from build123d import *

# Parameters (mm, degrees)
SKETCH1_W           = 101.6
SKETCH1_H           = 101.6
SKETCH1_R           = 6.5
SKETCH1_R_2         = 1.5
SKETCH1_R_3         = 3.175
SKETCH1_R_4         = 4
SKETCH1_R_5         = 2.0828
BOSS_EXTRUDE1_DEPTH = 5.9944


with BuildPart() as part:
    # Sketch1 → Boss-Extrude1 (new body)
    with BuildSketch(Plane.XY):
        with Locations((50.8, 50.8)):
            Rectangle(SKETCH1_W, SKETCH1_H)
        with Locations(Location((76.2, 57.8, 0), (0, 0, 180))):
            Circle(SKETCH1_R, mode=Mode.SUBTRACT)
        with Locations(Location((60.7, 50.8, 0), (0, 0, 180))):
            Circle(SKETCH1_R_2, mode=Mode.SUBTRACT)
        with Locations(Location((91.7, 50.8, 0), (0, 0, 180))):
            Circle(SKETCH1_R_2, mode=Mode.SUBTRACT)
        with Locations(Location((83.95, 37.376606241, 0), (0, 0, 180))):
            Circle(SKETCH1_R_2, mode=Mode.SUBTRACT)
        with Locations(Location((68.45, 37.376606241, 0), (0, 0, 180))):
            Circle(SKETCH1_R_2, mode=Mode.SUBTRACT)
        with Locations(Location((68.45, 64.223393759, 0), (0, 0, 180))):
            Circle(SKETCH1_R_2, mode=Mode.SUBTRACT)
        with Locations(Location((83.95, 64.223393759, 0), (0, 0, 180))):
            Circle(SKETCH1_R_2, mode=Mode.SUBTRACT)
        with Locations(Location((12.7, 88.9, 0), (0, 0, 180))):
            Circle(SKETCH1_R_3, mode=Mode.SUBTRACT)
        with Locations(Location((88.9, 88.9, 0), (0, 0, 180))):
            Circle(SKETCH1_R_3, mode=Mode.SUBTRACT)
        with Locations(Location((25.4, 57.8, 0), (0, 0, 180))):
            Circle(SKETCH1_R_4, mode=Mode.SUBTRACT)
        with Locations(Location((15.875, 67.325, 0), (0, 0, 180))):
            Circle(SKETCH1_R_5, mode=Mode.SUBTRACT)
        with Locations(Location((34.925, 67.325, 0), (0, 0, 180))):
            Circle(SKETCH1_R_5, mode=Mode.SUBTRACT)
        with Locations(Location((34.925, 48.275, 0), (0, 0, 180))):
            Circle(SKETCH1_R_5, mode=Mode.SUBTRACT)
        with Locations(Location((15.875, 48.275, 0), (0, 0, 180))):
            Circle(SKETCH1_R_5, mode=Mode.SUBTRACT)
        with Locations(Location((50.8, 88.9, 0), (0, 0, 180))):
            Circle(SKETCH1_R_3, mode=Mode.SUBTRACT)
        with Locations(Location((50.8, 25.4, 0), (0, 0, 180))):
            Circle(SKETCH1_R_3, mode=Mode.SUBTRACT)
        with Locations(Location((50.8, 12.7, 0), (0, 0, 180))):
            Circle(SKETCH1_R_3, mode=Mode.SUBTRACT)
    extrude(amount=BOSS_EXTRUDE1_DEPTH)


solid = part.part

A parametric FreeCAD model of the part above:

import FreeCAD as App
import Part
import Sketcher
Q = App.Units.Quantity


def add_polygon(sketch, points):
    """Adds a closed chain of lines whose ends are joined by coincident constraints."""
    first, n = sketch.GeometryCount, len(points)
    for a, b in zip(points, points[1:] + points[:1]):
        sketch.addGeometry(Part.LineSegment(App.Vector(*a, 0), App.Vector(*b, 0)), False)
    for i in range(n):
        sketch.addConstraint(Sketcher.Constraint("Coincident", first + i, 2, first + (i + 1) % n, 1))

doc = App.newDocument("Part")
body = doc.addObject("PartDesign::Body", "Body")

sketch1 = body.newObject("Sketcher::SketchObject", "Sketch")
sketch1.AttachmentSupport = (doc.getObject("XY_Plane"), [""])
sketch1.MapMode = "FlatFace"
add_polygon(sketch1, [(0, 101.6), (0, 0), (101.6, 0), (101.6, 101.6)])
sketch1.addGeometry(Part.Circle(App.Vector(50.8, 12.7, 0), App.Vector(0, 0, 1), 3.175), False)
sketch1.addGeometry(Part.Circle(App.Vector(50.8, 25.4, 0), App.Vector(0, 0, 1), 3.175), False)
sketch1.addGeometry(Part.Circle(App.Vector(15.875, 48.275, 0), App.Vector(0, 0, 1), 2.0828), False)
sketch1.addGeometry(Part.Circle(App.Vector(34.925, 48.275, 0), App.Vector(0, 0, 1), 2.0828), False)
sketch1.addGeometry(Part.Circle(App.Vector(68.45, 37.376606, 0), App.Vector(0, 0, 1), 1.5), False)
sketch1.addGeometry(Part.Circle(App.Vector(60.7, 50.8, 0), App.Vector(0, 0, 1), 1.5), False)
sketch1.addGeometry(Part.Circle(App.Vector(83.95, 37.376606, 0), App.Vector(0, 0, 1), 1.5), False)
sketch1.addGeometry(Part.Circle(App.Vector(91.7, 50.8, 0), App.Vector(0, 0, 1), 1.5), False)
sketch1.addGeometry(Part.Circle(App.Vector(25.4, 57.8, 0), App.Vector(0, 0, 1), 4), False)
sketch1.addGeometry(Part.Circle(App.Vector(15.875, 67.325, 0), App.Vector(0, 0, 1), 2.0828), False)
sketch1.addGeometry(Part.Circle(App.Vector(34.925, 67.325, 0), App.Vector(0, 0, 1), 2.0828), False)
sketch1.addGeometry(Part.Circle(App.Vector(12.7, 88.9, 0), App.Vector(0, 0, 1), 3.175), False)
sketch1.addGeometry(Part.Circle(App.Vector(50.8, 88.9, 0), App.Vector(0, 0, 1), 3.175), False)
sketch1.addGeometry(Part.Circle(App.Vector(68.45, 64.223394, 0), App.Vector(0, 0, 1), 1.5), False)
sketch1.addGeometry(Part.Circle(App.Vector(76.2, 57.8, 0), App.Vector(0, 0, 1), 6.5), False)
sketch1.addGeometry(Part.Circle(App.Vector(83.95, 64.223394, 0), App.Vector(0, 0, 1), 1.5), False)
sketch1.addGeometry(Part.Circle(App.Vector(88.9, 88.9, 0), App.Vector(0, 0, 1), 3.175), False)
sketch1.addConstraint(Sketcher.Constraint("Vertical", 0))
sketch1.addConstraint(Sketcher.Constraint("Horizontal", 1))
sketch1.addConstraint(Sketcher.Constraint("Vertical", 2))
sketch1.addConstraint(Sketcher.Constraint("Horizontal", 3))
sketch1.addConstraint(Sketcher.Constraint("Coincident", 0, 2, -1, 1))
sketch1.addConstraint(Sketcher.Constraint("Equal", 4, 5))
sketch1.addConstraint(Sketcher.Constraint("Equal", 6, 7))
sketch1.addConstraint(Sketcher.Constraint("Equal", 8, 9))
sketch1.addConstraint(Sketcher.Constraint("Equal", 9, 10))
sketch1.addConstraint(Sketcher.Constraint("Equal", 10, 11))
sketch1.addConstraint(Sketcher.Constraint("Equal", 7, 13))
sketch1.addConstraint(Sketcher.Constraint("Equal", 13, 14))
sketch1.addConstraint(Sketcher.Constraint("Equal", 5, 15))
sketch1.addConstraint(Sketcher.Constraint("Equal", 15, 16))
sketch1.addConstraint(Sketcher.Constraint("Equal", 11, 17))
sketch1.addConstraint(Sketcher.Constraint("Equal", 17, 19))
sketch1.addConstraint(Sketcher.Constraint("Equal", 16, 20))
sketch1.addConstraint(Sketcher.Constraint("Horizontal", 6, 3, 7, 3))
sketch1.addConstraint(Sketcher.Constraint("Horizontal", 8, 3, 10, 3))
sketch1.addConstraint(Sketcher.Constraint("Horizontal", 9, 3, 11, 3))
sketch1.addConstraint(Sketcher.Constraint("Horizontal", 13, 3, 14, 3))
sketch1.addConstraint(Sketcher.Constraint("Horizontal", 15, 3, 16, 3))
sketch1.addConstraint(Sketcher.Constraint("Horizontal", 12, 3, 18, 3))
sketch1.addConstraint(Sketcher.Constraint("Horizontal", 17, 3, 19, 3))
sketch1.addConstraint(Sketcher.Constraint("Horizontal", 16, 3, 20, 3))
sketch1.addConstraint(Sketcher.Constraint("Vertical", 4, 3, 5, 3))
sketch1.addConstraint(Sketcher.Constraint("Vertical", 6, 3, 13, 3))
sketch1.addConstraint(Sketcher.Constraint("Vertical", 7, 3, 14, 3))
sketch1.addConstraint(Sketcher.Constraint("Vertical", 5, 3, 16, 3))
sketch1.addConstraint(Sketcher.Constraint("Vertical", 8, 3, 17, 3))
sketch1.addConstraint(Sketcher.Constraint("Vertical", 10, 3, 19, 3))
sketch1.addConstraint(Sketcher.Constraint("Equal", 3, 0))
sketch1.addConstraint(Sketcher.Constraint("Diameter", 4, Q("0.25 in")))
sketch1.addConstraint(Sketcher.Constraint("DistanceX", 1, 1, 1, 2, Q("4 in")))
sketch1.addConstraint(Sketcher.Constraint("Diameter", 6, Q("0.164 in")))
sketch1.addConstraint(Sketcher.Constraint("DistanceX", -1, 1, 4, 3, Q("2 in")))
sketch1.addConstraint(Sketcher.Constraint("DistanceY", -1, 1, 5, 3, Q("1 in")))
sketch1.addConstraint(Sketcher.Constraint("DistanceY", -1, 1, 9, 3, Q("2 in")))
sketch1.addConstraint(Sketcher.Constraint("DistanceX", -1, 1, 12, 3, Q("1 in")))
sketch1.addConstraint(Sketcher.Constraint("DistanceX", -1, 1, 18, 3, Q("3 in")))
sketch1.addConstraint(Sketcher.Constraint("DistanceY", -1, 1, 4, 3, Q("0.5 in")))
sketch1.addConstraint(Sketcher.Constraint("DistanceX", -1, 1, 15, 3, Q("0.5 in")))
sketch1.addConstraint(Sketcher.Constraint("DistanceY", -1, 1, 15, 3, Q("3.5 in")))
sketch1.addConstraint(Sketcher.Constraint("DistanceX", -1, 1, 20, 3, Q("3.5 in")))
sketch1.addConstraint(Sketcher.Constraint("Diameter", 8, 3.0))
sketch1.addConstraint(Sketcher.Constraint("Diameter", 12, 8.0))
sketch1.addConstraint(Sketcher.Constraint("Diameter", 18, 13.0))
sketch1.addConstraint(Sketcher.Constraint("DistanceX", 6, 3, 7, 3, Q("0.75 in")))
sketch1.addConstraint(Sketcher.Constraint("DistanceY", 6, 3, 13, 3, Q("0.75 in")))
sketch1.addConstraint(Sketcher.Constraint("DistanceX", -1, 1, 6, 3, Q("0.625 in")))
sketch1.addConstraint(Sketcher.Constraint("DistanceY", 6, 3, 12, 3, Q("0.375 in")))
sketch1.addConstraint(Sketcher.Constraint("DistanceY", -1, 1, 6, 3, 48.275))
sketch1.addConstraint(Sketcher.Constraint("DistanceX", -1, 1, 8, 3, 68.45))
sketch1.addConstraint(Sketcher.Constraint("DistanceX", -1, 1, 9, 3, 60.7))
sketch1.addConstraint(Sketcher.Constraint("DistanceX", -1, 1, 10, 3, 83.95))
sketch1.addConstraint(Sketcher.Constraint("DistanceX", -1, 1, 11, 3, 91.7))
sketch1.addConstraint(Sketcher.Constraint("DistanceY", -1, 1, 8, 3, 37.376606))
sketch1.addConstraint(Sketcher.Constraint("DistanceY", -1, 1, 17, 3, 64.223394))
pad1 = body.newObject("PartDesign::Pad", "Pad")
pad1.Profile = sketch1
pad1.Length = Q("0.236 in")

doc.recompute()
